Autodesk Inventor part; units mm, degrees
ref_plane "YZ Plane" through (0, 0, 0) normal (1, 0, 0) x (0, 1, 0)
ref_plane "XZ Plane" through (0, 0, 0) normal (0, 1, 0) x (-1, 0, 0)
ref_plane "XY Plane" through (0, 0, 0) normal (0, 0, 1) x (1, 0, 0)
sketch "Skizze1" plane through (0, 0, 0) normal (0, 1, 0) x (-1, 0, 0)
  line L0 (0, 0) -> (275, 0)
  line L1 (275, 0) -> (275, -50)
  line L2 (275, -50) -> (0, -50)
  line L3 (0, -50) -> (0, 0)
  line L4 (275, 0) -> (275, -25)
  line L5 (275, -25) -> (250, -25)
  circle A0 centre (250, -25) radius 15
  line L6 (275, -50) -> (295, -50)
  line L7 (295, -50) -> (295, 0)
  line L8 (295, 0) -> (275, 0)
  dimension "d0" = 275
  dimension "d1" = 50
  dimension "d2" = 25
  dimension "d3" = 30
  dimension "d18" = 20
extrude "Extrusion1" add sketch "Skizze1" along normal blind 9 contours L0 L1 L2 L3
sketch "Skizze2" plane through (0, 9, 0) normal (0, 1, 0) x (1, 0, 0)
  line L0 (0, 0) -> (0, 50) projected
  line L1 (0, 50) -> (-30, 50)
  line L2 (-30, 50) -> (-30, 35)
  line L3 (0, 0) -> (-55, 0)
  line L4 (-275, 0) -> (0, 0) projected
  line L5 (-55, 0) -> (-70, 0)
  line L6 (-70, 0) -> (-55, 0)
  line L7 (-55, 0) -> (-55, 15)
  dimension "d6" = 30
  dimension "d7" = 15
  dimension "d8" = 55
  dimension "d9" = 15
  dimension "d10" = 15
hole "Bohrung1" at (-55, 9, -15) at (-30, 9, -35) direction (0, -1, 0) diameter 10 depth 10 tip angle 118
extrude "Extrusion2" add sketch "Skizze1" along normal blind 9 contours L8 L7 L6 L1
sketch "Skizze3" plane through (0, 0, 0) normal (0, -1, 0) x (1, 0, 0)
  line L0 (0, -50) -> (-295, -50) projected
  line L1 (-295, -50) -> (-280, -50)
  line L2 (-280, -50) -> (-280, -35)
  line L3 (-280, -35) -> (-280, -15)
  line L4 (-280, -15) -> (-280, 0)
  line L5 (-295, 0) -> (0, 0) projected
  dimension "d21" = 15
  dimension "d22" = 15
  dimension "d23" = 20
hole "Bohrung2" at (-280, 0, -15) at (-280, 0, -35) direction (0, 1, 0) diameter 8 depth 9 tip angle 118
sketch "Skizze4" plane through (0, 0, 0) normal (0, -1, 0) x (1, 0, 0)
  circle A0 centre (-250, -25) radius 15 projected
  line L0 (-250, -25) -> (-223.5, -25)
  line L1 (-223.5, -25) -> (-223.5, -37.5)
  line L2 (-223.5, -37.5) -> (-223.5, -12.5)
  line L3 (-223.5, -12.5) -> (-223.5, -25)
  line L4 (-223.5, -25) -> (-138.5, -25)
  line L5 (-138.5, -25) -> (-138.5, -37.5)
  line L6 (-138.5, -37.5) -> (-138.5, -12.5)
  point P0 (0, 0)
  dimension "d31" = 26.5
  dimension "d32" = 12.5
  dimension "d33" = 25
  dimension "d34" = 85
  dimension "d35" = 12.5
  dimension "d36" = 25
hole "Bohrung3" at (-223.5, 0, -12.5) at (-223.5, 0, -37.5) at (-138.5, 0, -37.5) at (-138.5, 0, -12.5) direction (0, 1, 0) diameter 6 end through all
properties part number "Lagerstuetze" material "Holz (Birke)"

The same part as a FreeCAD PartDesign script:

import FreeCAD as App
import Part
import Sketcher

V = App.Vector

doc = App.newDocument("Part")
params = doc.addObject("Spreadsheet::Sheet", "Params")
for row, (alias, value) in enumerate([
    ("sketch1_diameter", "30 mm"),
    ("sketch1_width", "275 mm"),
    ("sketch1_height", "50 mm"),
    ("pad1_length", "9 mm"),
    ("sketch2_diameter", "10 mm"),
    ("hole_diameter", "10 mm"),
    ("hole_depth", "10 mm"),
    ("sketch3_width", "20 mm"),
    ("sketch3_height", "50 mm"),
    ("pad2_length", "9 mm"),
    ("sketch4_diameter", "8 mm"),
    ("hole2_diameter", "8 mm"),
    ("hole2_depth", "9 mm"),
    ("sketch5_diameter", "6 mm"),
    ("hole3_diameter", "6 mm"),
], start=1):
    params.set(f"A{row}", alias)
    params.set(f"B{row}", "=" + value)
    params.setAlias(f"B{row}", alias)

body = doc.addObject("PartDesign::Body", "Body")

sketch1 = doc.addObject("Sketcher::SketchObject", "Sketch")
body.addObject(sketch1)
sketch1.AttachmentSupport = (doc.XZ_Plane, [""])
sketch1.MapMode = "FlatFace"
sketch1.addGeometry(Part.LineSegment(V(-275, 0, 0), V(0, 0, 0)), False)
sketch1.addGeometry(Part.LineSegment(V(0, 0, 0), V(0, -50, 0)), False)
sketch1.addGeometry(Part.LineSegment(V(0, -50, 0), V(-275, -50, 0)), False)
sketch1.addGeometry(Part.LineSegment(V(-275, -50, 0), V(-275, -25, 0)), False)
sketch1.addGeometry(Part.LineSegment(V(-275, -25, 0), V(-275, 0, 0)), False)
sketch1.addGeometry(Part.Circle(V(-250, -25, 0), V(0, 0, 1), 15), False)
sketch1.addConstraint(Sketcher.Constraint("Coincident", 0, 2, 1, 1))
sketch1.addConstraint(Sketcher.Constraint("Coincident", 1, 2, 2, 1))
sketch1.addConstraint(Sketcher.Constraint("Coincident", 2, 2, 3, 1))
sketch1.addConstraint(Sketcher.Constraint("Coincident", 3, 2, 4, 1))
sketch1.addConstraint(Sketcher.Constraint("Coincident", 4, 2, 0, 1))
sketch1.addConstraint(Sketcher.Constraint("Horizontal", 0))
sketch1.addConstraint(Sketcher.Constraint("Vertical", 1))
sketch1.addConstraint(Sketcher.Constraint("Horizontal", 2))
sketch1.addConstraint(Sketcher.Constraint("Vertical", 3))
sketch1.addConstraint(Sketcher.Constraint("Vertical", 4))
sketch1.addConstraint(Sketcher.Constraint("Coincident", 0, 2, -1, 1))
sketch1.addConstraint(Sketcher.Constraint("Horizontal", 5, 3, 3, 2))
sketch1.addConstraint(Sketcher.Constraint("Equal", 3, 4))
sketch1.addConstraint(Sketcher.Constraint("Diameter", 5, 30.0))
sketch1.addConstraint(Sketcher.Constraint("DistanceX", 0, 1, 0, 2, 275.0))
sketch1.addConstraint(Sketcher.Constraint("DistanceY", 1, 2, 1, 1, 50.0))
sketch1.addConstraint(Sketcher.Constraint("DistanceX", 2, 2, 5, 3, 25.0))
sketch1.setExpression("Constraints[13]", "Params.sketch1_diameter")
sketch1.setExpression("Constraints[14]", "Params.sketch1_width")
sketch1.setExpression("Constraints[15]", "Params.sketch1_height")
pad1 = doc.addObject("PartDesign::Pad", "Pad")
body.addObject(pad1)
pad1.Profile = sketch1
pad1.setExpression("Length", "Params.pad1_length")
pad1.Reversed = True

sketch2 = doc.addObject("Sketcher::SketchObject", "Sketch001")
body.addObject(sketch2)
sketch2.AttachmentSupport = (doc.XZ_Plane, [""])
sketch2.MapMode = "FlatFace"
sketch2.AttachmentOffset = App.Placement(V(0, 0, -9), App.Rotation())
sketch2.addGeometry(Part.Circle(V(-55, -15, 0), V(0, 0, 1), 5), False)
sketch2.addGeometry(Part.Circle(V(-30, -35, 0), V(0, 0, 1), 5), False)
sketch2.addConstraint(Sketcher.Constraint("Equal", 0, 1))
sketch2.addConstraint(Sketcher.Constraint("Diameter", 0, 10.0))
sketch2.addConstraint(Sketcher.Constraint("DistanceX", 0, 3, -1, 1, 55.0))
sketch2.addConstraint(Sketcher.Constraint("DistanceY", 0, 3, -1, 1, 15.0))
sketch2.addConstraint(Sketcher.Constraint("DistanceX", 1, 3, -1, 1, 30.0))
sketch2.addConstraint(Sketcher.Constraint("DistanceY", 1, 3, -1, 1, 35.0))
sketch2.setExpression("Constraints[1]", "Params.sketch2_diameter")
doc.recompute()
hole = doc.addObject("PartDesign::Hole", "Hole")
body.addObject(hole)
hole.Profile = sketch2
hole.ThreadType = "None"
hole.setExpression("Diameter", "Params.hole_diameter")
hole.DepthType = "Dimension"
hole.setExpression("Depth", "Params.hole_depth")
hole.DrillPoint = "Angled"
hole.DrillPointAngle = 118
hole.Reversed = True

sketch3 = doc.addObject("Sketcher::SketchObject", "Sketch002")
body.addObject(sketch3)
sketch3.AttachmentSupport = (doc.XZ_Plane, [""])
sketch3.MapMode = "FlatFace"
sketch3.addGeometry(Part.LineSegment(V(-295, 0, 0), V(-275, 0, 0)), False)
sketch3.addGeometry(Part.LineSegment(V(-275, 0, 0), V(-275, -50, 0)), False)
sketch3.addGeometry(Part.LineSegment(V(-275, -50, 0), V(-295, -50, 0)), False)
sketch3.addGeometry(Part.LineSegment(V(-295, -50, 0), V(-295, 0, 0)), False)
sketch3.addConstraint(Sketcher.Constraint("Coincident", 0, 2, 1, 1))
sketch3.addConstraint(Sketcher.Constraint("Coincident", 1, 2, 2, 1))
sketch3.addConstraint(Sketcher.Constraint("Coincident", 2, 2, 3, 1))
sketch3.addConstraint(Sketcher.Constraint("Coincident", 3, 2, 0, 1))
sketch3.addConstraint(Sketcher.Constraint("Horizontal", 0))
sketch3.addConstraint(Sketcher.Constraint("Vertical", 1))
sketch3.addConstraint(Sketcher.Constraint("Horizontal", 2))
sketch3.addConstraint(Sketcher.Constraint("Vertical", 3))
sketch3.addConstraint(Sketcher.Constraint("PointOnObject", 0, 2, -1))
sketch3.addConstraint(Sketcher.Constraint("DistanceX", 0, 1, 0, 2, 20.0))
sketch3.addConstraint(Sketcher.Constraint("DistanceY", 1, 2, 1, 1, 50.0))
sketch3.addConstraint(Sketcher.Constraint("DistanceX", 0, 2, -1, 1, 275.0))
sketch3.setExpression("Constraints[9]", "Params.sketch3_width")
sketch3.setExpression("Constraints[10]", "Params.sketch3_height")
pad2 = doc.addObject("PartDesign::Pad", "Pad001")
body.addObject(pad2)
pad2.Profile = sketch3
pad2.setExpression("Length", "Params.pad2_length")
pad2.Reversed = True

sketch4 = doc.addObject("Sketcher::SketchObject", "Sketch003")
body.addObject(sketch4)
sketch4.AttachmentSupport = (doc.XZ_Plane, [""])
sketch4.MapMode = "FlatFace"
sketch4.addGeometry(Part.Circle(V(-280, -15, 0), V(0, 0, 1), 4), False)
sketch4.addGeometry(Part.Circle(V(-280, -35, 0), V(0, 0, 1), 4), False)
sketch4.addConstraint(Sketcher.Constraint("Equal", 0, 1))
sketch4.addConstraint(Sketcher.Constraint("Vertical", 0, 3, 1, 3))
sketch4.addConstraint(Sketcher.Constraint("Diameter", 0, 8.0))
sketch4.addConstraint(Sketcher.Constraint("DistanceX", 0, 3, -1, 1, 280.0))
sketch4.addConstraint(Sketcher.Constraint("DistanceY", 0, 3, -1, 1, 15.0))
sketch4.addConstraint(Sketcher.Constraint("DistanceY", 1, 3, -1, 1, 35.0))
sketch4.setExpression("Constraints[2]", "Params.sketch4_diameter")
doc.recompute()
hole2 = doc.addObject("PartDesign::Hole", "Hole001")
body.addObject(hole2)
hole2.Profile = sketch4
hole2.ThreadType = "None"
hole2.setExpression("Diameter", "Params.hole2_diameter")
hole2.DepthType = "Dimension"
hole2.setExpression("Depth", "Params.hole2_depth")
hole2.DrillPoint = "Angled"
hole2.DrillPointAngle = 118

sketch5 = doc.addObject("Sketcher::SketchObject", "Sketch004")
body.addObject(sketch5)
sketch5.AttachmentSupport = (doc.XZ_Plane, [""])
sketch5.MapMode = "FlatFace"
sketch5.addGeometry(Part.Circle(V(-223.5, -12.5, 0), V(0, 0, 1), 3), False)
sketch5.addGeometry(Part.Circle(V(-223.5, -37.5, 0), V(0, 0, 1), 3), False)
sketch5.addGeometry(Part.Circle(V(-138.5, -37.5, 0), V(0, 0, 1), 3), False)
sketch5.addGeometry(Part.Circle(V(-138.5, -12.5, 0), V(0, 0, 1), 3), False)
sketch5.addConstraint(Sketcher.Constraint("Equal", 0, 1))
sketch5.addConstraint(Sketcher.Constraint("Equal", 1, 2))
sketch5.addConstraint(Sketcher.Constraint("Equal", 2, 3))
sketch5.addConstraint(Sketcher.Constraint("Horizontal", 1, 3, 2, 3))
sketch5.addConstraint(Sketcher.Constraint("Horizontal", 0, 3, 3, 3))
sketch5.addConstraint(Sketcher.Constraint("Vertical", 0, 3, 1, 3))
sketch5.addConstraint(Sketcher.Constraint("Vertical", 2, 3, 3, 3))
sketch5.addConstraint(Sketcher.Constraint("Diameter", 0, 6.0))
sketch5.addConstraint(Sketcher.Constraint("DistanceY", 1, 3, 0, 3, 25.0))
sketch5.addConstraint(Sketcher.Constraint("DistanceX", 1, 3, 2, 3, 85.0))
sketch5.addConstraint(Sketcher.Constraint("DistanceX", 0, 3, -1, 1, 223.5))
sketch5.addConstraint(Sketcher.Constraint("DistanceY", 0, 3, -1, 1, 12.5))
sketch5.setExpression("Constraints[7]", "Params.sketch5_diameter")
doc.recompute()
hole3 = doc.addObject("PartDesign::Hole", "Hole002")
body.addObject(hole3)
hole3.Profile = sketch5
hole3.ThreadType = "None"
hole3.setExpression("Diameter", "Params.hole3_diameter")
hole3.DepthType = "ThroughAll"

doc.recompute()
